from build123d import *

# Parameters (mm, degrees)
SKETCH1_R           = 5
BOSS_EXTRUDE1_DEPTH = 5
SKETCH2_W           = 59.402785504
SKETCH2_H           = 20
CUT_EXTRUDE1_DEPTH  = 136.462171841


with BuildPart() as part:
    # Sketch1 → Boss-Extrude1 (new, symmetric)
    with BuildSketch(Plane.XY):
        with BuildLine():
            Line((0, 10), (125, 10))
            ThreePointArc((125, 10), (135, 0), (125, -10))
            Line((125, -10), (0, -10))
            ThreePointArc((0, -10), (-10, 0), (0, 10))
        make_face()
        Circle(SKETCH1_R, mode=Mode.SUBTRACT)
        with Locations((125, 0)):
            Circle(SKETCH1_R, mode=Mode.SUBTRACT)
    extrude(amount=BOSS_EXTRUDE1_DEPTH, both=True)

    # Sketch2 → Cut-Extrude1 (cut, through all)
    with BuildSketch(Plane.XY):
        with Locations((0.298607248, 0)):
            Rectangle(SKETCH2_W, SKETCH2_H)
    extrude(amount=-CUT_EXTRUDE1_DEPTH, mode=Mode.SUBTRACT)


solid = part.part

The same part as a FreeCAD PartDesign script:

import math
import FreeCAD as App
import Part
import Sketcher

V = App.Vector

doc = App.newDocument("Part")
body = doc.addObject("PartDesign::Body", "Body")

# Sketch on XY plane
sketch1 = doc.addObject("Sketcher::SketchObject", "Sketch")
body.addObject(sketch1)
sketch1.AttachmentSupport = (doc.XY_Plane, [""])
sketch1.MapMode = "FlatFace"
sketch1.addGeometry([
    Part.LineSegment(V(125, 10, 0), V(0, 10, 0)),  # 0
    Part.ArcOfCircle(Part.Circle(V(0, 0, 0), V(0, 0, 1), 10), math.radians(90), math.radians(270)),  # 1
    Part.LineSegment(V(0, -10, 0), V(125, -10, 0)),  # 2
    Part.ArcOfCircle(Part.Circle(V(125, 0, 0), V(0, 0, 1), 10), math.radians(-90), math.radians(90)),  # 3
    Part.Circle(V(125, 0, 0), V(0, 0, 1), 5),  # 4
    Part.Circle(V(0, 0, 0), V(0, 0, 1), 5),  # 5
], False)
sketch1.addConstraint([
    Sketcher.Constraint("Tangent", 0, 2, 1, 1),
    Sketcher.Constraint("Tangent", 1, 2, 2, 1),
    Sketcher.Constraint("Tangent", 2, 2, 3, 1),
    Sketcher.Constraint("Tangent", 3, 2, 0, 1),
    Sketcher.Constraint("Horizontal", 0),
    Sketcher.Constraint("Horizontal", 2),
    Sketcher.Constraint("Coincident", 1, 3, -1, 1),
    Sketcher.Constraint("Coincident", 5, 3, -1, 1),
    Sketcher.Constraint("Coincident", 4, 3, 3, 3),
    Sketcher.Constraint("Equal", 4, 5),
    Sketcher.Constraint("Diameter", 4, 10.0),
    Sketcher.Constraint("Radius", 1, 10.0),
    Sketcher.Constraint("DistanceX", 0, 2, 0, 1, 125.0),
])
pad1 = doc.addObject("PartDesign::Pad", "Pad")
body.addObject(pad1)
pad1.Profile = sketch1
pad1.Length = 10
pad1.Midplane = True

# Sketch on XY plane
sketch2 = doc.addObject("Sketcher::SketchObject", "Sketch001")
body.addObject(sketch2)
sketch2.AttachmentSupport = (doc.XY_Plane, [""])
sketch2.MapMode = "FlatFace"
sketch2.addGeometry([
    Part.LineSegment(V(-29, 10, 0), V(-29, -10, 0)),
    Part.LineSegment(V(-29, -10, 0), V(30, -10, 0)),
    Part.LineSegment(V(30, -10, 0), V(30, 10, 0)),
    Part.LineSegment(V(30, 10, 0), V(-29, 10, 0)),
], False)
sketch2.addConstraint([
    Sketcher.Constraint("Coincident", 0, 2, 1, 1),
    Sketcher.Constraint("Coincident", 1, 2, 2, 1),
    Sketcher.Constraint("Coincident", 2, 2, 3, 1),
    Sketcher.Constraint("Coincident", 3, 2, 0, 1),
    Sketcher.Constraint("Vertical", 0),
    Sketcher.Constraint("Horizontal", 1),
    Sketcher.Constraint("Vertical", 2),
    Sketcher.Constraint("Horizontal", 3),
    Sketcher.Constraint("DistanceY", 0, 2, 0, 1, 20.0),
    Sketcher.Constraint("DistanceY", 0, 2, -1, 1, 10.0),
    Sketcher.Constraint("DistanceX", -1, 1, 1, 2, 30.0),
    Sketcher.Constraint("DistanceX", 1, 1, 1, 2, 59.402786),
])
pocket1 = doc.addObject("PartDesign::Pocket", "Pocket")
body.addObject(pocket1)
pocket1.Profile = sketch2
pocket1.Type = "ThroughAll"

doc.recompute()
